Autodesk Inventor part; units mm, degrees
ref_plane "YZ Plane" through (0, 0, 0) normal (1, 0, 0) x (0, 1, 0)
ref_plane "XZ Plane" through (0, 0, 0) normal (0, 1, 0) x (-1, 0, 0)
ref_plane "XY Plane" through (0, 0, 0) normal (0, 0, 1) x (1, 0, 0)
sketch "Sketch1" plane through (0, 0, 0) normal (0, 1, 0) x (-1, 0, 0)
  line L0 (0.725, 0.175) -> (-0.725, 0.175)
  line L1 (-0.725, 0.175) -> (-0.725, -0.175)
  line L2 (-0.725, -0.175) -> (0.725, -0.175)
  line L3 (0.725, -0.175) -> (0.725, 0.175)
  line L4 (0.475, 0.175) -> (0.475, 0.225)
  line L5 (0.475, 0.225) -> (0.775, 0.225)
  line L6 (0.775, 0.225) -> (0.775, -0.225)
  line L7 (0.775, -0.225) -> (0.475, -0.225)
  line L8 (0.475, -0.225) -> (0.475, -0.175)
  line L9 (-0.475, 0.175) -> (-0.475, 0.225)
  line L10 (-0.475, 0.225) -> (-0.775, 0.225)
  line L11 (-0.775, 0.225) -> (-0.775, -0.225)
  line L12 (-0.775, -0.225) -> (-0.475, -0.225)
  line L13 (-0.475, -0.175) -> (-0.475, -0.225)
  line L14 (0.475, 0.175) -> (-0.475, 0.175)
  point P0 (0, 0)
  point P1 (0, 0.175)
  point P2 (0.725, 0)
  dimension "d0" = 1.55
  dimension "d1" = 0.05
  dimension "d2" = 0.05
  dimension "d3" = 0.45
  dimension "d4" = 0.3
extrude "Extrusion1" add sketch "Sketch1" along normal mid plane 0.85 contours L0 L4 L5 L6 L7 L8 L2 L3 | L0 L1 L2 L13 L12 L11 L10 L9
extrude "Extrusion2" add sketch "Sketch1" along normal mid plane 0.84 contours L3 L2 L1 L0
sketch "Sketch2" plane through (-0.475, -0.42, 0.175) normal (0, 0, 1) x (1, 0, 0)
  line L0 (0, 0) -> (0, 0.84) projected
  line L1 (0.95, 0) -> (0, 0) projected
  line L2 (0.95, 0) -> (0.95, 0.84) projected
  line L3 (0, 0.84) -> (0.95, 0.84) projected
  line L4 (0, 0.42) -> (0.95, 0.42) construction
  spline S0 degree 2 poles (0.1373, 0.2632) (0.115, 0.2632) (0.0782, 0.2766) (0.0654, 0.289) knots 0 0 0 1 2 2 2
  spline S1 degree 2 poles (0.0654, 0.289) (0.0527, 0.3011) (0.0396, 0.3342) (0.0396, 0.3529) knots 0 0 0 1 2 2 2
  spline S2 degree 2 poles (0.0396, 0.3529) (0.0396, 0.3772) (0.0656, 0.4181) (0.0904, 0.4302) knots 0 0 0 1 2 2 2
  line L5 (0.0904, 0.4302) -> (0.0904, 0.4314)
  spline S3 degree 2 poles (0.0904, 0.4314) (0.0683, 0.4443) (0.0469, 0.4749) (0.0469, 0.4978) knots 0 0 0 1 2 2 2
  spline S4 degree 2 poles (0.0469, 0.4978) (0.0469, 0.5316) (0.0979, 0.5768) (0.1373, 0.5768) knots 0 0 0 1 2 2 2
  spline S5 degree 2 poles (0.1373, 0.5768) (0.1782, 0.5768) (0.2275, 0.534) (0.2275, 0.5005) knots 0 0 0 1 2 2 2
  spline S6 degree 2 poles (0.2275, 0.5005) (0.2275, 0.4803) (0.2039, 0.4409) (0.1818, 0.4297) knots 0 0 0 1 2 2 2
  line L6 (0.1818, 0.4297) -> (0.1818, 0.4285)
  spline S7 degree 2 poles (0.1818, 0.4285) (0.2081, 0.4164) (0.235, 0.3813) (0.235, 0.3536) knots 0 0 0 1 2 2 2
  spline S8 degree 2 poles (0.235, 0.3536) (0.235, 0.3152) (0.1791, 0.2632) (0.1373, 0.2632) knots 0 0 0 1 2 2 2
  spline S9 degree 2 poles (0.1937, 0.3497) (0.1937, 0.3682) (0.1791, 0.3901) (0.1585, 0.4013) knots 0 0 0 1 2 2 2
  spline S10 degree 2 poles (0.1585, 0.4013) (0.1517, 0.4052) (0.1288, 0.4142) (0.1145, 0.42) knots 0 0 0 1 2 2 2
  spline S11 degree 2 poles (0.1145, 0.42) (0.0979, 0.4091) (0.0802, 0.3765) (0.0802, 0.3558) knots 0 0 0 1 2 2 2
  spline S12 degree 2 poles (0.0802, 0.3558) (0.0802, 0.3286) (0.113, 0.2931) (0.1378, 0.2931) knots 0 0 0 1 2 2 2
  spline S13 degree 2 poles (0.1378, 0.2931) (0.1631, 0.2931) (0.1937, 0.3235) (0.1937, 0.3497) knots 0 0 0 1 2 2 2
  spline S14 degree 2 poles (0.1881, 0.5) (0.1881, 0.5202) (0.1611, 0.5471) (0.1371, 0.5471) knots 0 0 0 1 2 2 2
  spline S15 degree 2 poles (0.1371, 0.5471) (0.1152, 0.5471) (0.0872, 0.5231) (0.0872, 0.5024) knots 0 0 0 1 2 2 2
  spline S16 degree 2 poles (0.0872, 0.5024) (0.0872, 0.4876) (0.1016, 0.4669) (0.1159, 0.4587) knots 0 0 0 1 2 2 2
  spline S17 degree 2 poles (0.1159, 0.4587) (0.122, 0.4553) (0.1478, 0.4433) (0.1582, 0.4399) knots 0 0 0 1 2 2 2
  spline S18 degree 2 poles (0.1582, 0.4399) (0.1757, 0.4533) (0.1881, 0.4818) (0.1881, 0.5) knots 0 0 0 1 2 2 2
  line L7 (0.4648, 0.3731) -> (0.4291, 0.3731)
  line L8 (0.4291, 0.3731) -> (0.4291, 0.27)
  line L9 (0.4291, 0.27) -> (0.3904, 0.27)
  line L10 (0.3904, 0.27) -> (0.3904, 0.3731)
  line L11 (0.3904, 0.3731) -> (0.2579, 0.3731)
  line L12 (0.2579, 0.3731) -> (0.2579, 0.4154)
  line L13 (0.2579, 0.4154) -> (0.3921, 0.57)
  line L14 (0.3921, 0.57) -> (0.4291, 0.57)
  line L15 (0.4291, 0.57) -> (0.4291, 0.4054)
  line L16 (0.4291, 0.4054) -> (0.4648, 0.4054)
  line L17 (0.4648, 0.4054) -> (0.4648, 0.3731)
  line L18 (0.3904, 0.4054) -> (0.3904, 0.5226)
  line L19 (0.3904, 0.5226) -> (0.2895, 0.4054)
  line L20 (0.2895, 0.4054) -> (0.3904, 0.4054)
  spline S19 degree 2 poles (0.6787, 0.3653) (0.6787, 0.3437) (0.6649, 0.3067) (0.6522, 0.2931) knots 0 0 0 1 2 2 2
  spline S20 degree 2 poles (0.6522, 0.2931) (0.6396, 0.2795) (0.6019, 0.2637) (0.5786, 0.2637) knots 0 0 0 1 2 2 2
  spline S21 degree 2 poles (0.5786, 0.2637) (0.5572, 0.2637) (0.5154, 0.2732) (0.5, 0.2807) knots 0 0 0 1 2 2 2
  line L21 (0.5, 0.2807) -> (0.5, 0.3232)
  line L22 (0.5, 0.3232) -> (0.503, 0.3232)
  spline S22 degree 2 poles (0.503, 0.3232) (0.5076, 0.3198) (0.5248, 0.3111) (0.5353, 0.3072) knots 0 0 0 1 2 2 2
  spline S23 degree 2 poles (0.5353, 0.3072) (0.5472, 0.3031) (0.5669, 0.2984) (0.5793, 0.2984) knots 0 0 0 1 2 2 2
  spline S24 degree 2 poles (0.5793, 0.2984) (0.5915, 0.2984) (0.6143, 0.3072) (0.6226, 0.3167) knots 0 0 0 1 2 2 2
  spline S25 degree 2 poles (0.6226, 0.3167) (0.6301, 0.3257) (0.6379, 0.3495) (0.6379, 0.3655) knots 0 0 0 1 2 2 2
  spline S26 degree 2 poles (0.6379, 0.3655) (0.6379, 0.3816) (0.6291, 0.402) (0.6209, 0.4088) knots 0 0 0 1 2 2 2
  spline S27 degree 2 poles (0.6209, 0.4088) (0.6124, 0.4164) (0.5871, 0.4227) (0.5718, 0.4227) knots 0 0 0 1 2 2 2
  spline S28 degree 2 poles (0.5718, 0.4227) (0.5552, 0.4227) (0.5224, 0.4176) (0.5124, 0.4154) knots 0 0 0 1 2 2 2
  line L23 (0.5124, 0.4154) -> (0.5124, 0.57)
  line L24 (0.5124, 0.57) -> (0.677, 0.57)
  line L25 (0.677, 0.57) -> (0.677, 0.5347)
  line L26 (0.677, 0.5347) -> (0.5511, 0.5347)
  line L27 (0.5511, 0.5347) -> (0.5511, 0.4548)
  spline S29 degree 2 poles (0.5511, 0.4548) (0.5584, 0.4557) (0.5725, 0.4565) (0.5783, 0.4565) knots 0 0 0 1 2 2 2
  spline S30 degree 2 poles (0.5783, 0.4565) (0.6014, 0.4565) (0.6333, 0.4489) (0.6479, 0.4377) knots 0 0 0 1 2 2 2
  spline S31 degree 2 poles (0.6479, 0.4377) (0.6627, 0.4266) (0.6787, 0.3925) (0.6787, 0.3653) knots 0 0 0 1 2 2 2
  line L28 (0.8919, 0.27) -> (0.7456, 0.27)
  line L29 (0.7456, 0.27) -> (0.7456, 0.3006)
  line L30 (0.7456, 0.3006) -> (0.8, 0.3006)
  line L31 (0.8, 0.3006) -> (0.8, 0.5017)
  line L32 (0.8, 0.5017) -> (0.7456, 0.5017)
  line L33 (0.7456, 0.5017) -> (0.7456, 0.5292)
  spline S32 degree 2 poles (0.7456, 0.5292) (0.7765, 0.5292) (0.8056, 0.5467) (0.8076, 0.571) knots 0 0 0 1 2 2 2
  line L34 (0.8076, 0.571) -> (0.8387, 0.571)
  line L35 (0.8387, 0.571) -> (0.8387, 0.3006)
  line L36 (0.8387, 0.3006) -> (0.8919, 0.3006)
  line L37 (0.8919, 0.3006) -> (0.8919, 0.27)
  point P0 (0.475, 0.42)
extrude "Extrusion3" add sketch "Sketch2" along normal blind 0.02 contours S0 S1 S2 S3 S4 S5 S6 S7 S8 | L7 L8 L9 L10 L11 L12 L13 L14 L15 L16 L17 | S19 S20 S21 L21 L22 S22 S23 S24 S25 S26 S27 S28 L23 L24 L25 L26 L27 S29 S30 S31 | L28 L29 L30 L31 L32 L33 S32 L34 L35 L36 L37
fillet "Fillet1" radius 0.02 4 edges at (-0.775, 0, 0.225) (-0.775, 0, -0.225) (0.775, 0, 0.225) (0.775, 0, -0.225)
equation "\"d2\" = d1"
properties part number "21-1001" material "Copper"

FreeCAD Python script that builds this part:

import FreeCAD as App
import Part
import Sketcher
Q = App.Units.Quantity


def edges_at(feature, points):
    """Names of the edges that pass closest to the given points."""
    edges = feature.Shape.Edges
    near = lambda p: min(range(len(edges)), key=lambda i: edges[i].distToShape(Part.Vertex(*p))[0])
    return sorted({f"Edge{near(p) + 1}" for p in points})


def add_polygon(sketch, points):
    """Adds a closed chain of lines whose ends are joined by coincident constraints."""
    first, n = sketch.GeometryCount, len(points)
    for a, b in zip(points, points[1:] + points[:1]):
        sketch.addGeometry(Part.LineSegment(App.Vector(*a, 0), App.Vector(*b, 0)), False)
    for i in range(n):
        sketch.addConstraint(Sketcher.Constraint("Coincident", first + i, 2, first + (i + 1) % n, 1))

doc = App.newDocument("Part")
body = doc.addObject("PartDesign::Body", "Body")
body.AllowCompound = True

sketch1 = doc.addObject("Sketcher::SketchObject", "Sketch")
body.addObject(sketch1)
sketch1.AttachmentSupport = (doc.XZ_Plane, [""])
sketch1.MapMode = "FlatFace"
add_polygon(sketch1, [(-0.47, 0.17), (-0.72, 0.17), (-0.72, -0.17), (-0.47, -0.17), (-0.47, -0.23), (-0.78, -0.23), (-0.78, 0.23), (-0.47, 0.23)])
add_polygon(sketch1, [(0.72, 0.17), (0.47, 0.17), (0.47, 0.23), (0.78, 0.23), (0.78, -0.23), (0.47, -0.23), (0.47, -0.17), (0.72, -0.17)])
sketch1.addConstraint([
    Sketcher.Constraint("Horizontal", 0),
    Sketcher.Constraint("Vertical", 1),
    Sketcher.Constraint("Horizontal", 2),
    Sketcher.Constraint("Vertical", 3),
    Sketcher.Constraint("Horizontal", 4),
    Sketcher.Constraint("Vertical", 5),
    Sketcher.Constraint("Horizontal", 6),
    Sketcher.Constraint("Vertical", 7),
    Sketcher.Constraint("Horizontal", 8),
    Sketcher.Constraint("Vertical", 9),
    Sketcher.Constraint("Horizontal", 10),
    Sketcher.Constraint("Vertical", 11),
    Sketcher.Constraint("Horizontal", 12),
    Sketcher.Constraint("Vertical", 13),
    Sketcher.Constraint("Horizontal", 14),
    Sketcher.Constraint("Vertical", 15),
    Sketcher.Constraint("Symmetric", 2, 2, 8, 2, -1, 1),
    Sketcher.Constraint("Symmetric", 4, 2, 10, 2, -1, 1),
    Sketcher.Constraint("Symmetric", 6, 2, 12, 2, -1, 1),
    Sketcher.Constraint("Symmetric", 0, 2, 14, 2, -1, 1),
    Sketcher.Constraint("Symmetric", 7, 2, 8, 2, -2),
    Sketcher.Constraint("Horizontal", 6, 2, 9, 2),
    Sketcher.Constraint("DistanceX", 4, 2, 4, 1, Q("0.3 mm")),
    Sketcher.Constraint("DistanceY", 3, 2, 3, 1, Q("0.05 mm")),
    Sketcher.Constraint("DistanceY", 5, 1, 5, 2, Q("0.45 mm")),
    Sketcher.Constraint("DistanceX", 4, 2, 1, 2, Q("0.05 mm")),
    Sketcher.Constraint("DistanceX", 0, 2, 8, 2, Q("1.2 mm")),
])
pad1 = doc.addObject("PartDesign::Pad", "Pad")
body.addObject(pad1)
pad1.Profile = sketch1
pad1.Length = 0.85
pad1.Midplane = True

sketch2 = doc.addObject("Sketcher::SketchObject", "Sketch001")
body.addObject(sketch2)
sketch2.AttachmentSupport = (doc.XZ_Plane, [""])
sketch2.MapMode = "FlatFace"
add_polygon(sketch2, [(-0.72, -0.17), (-0.72, 0.17), (0.72, 0.17), (0.72, -0.17)])
sketch2.addConstraint([
    Sketcher.Constraint("Vertical", 0),
    Sketcher.Constraint("Horizontal", 1),
    Sketcher.Constraint("Vertical", 2),
    Sketcher.Constraint("Horizontal", 3),
    Sketcher.Constraint("Symmetric", 0, 2, 2, 2, -1, 1),
    Sketcher.Constraint("DistanceX", 1, 1, 1, 2, Q("1.45 mm")),
    Sketcher.Constraint("DistanceY", 0, 1, 0, 2, Q("0.35 mm")),
])
pad2 = doc.addObject("PartDesign::Pad", "Pad001")
body.addObject(pad2)
pad2.Profile = sketch2
pad2.Length = 0.84
pad2.Midplane = True

sketch3 = doc.addObject("Sketcher::SketchObject", "Sketch002")
body.addObject(sketch3)
sketch3.AttachmentSupport = (doc.XY_Plane, [""])
sketch3.MapMode = "FlatFace"
sketch3.AttachmentOffset = App.Placement(App.Vector(0, 0, 0.175), App.Rotation())
sketch3.addGeometry(Part.BSplineCurve([App.Vector(-0.3377, -0.1568, 0), App.Vector(-0.36, -0.1568, 0), App.Vector(-0.3968, -0.1434, 0), App.Vector(-0.4096, -0.131, 0)], [3, 1, 3], [0, 1, 2], False, 2, [1, 1, 1, 1], False), False)
sketch3.addGeometry(Part.BSplineCurve([App.Vector(-0.24, -0.0664, 0), App.Vector(-0.24, -0.1048, 0), App.Vector(-0.2959, -0.1568, 0), App.Vector(-0.3377, -0.1568, 0)], [3, 1, 3], [0, 1, 2], False, 2, [1, 1, 1, 1], False), False)
sketch3.addGeometry(Part.BSplineCurve([App.Vector(-0.2932, 0.0097, 0), App.Vector(-0.2669, -0.0036, 0), App.Vector(-0.24, -0.0387, 0), App.Vector(-0.24, -0.0664, 0)], [3, 1, 3], [0, 1, 2], False, 2, [1, 1, 1, 1], False), False)
sketch3.addGeometry(Part.BSplineCurve([App.Vector(-0.2475, 0.0805, 0), App.Vector(-0.2475, 0.0603, 0), App.Vector(-0.2711, 0.0209, 0), App.Vector(-0.2932, 0.0097, 0)], [3, 1, 3], [0, 1, 2], False, 2, [1, 1, 1, 1], False), False)
sketch3.addGeometry(Part.BSplineCurve([App.Vector(-0.3377, 0.1568, 0), App.Vector(-0.2968, 0.1568, 0), App.Vector(-0.2475, 0.114, 0), App.Vector(-0.2475, 0.0805, 0)], [3, 1, 3], [0, 1, 2], False, 2, [1, 1, 1, 1], False), False)
sketch3.addGeometry(Part.BSplineCurve([App.Vector(-0.4281, 0.0778, 0), App.Vector(-0.4281, 0.1116, 0), App.Vector(-0.3771, 0.1568, 0), App.Vector(-0.3377, 0.1568, 0)], [3, 1, 3], [0, 1, 2], False, 2, [1, 1, 1, 1], False), False)
sketch3.addGeometry(Part.BSplineCurve([App.Vector(-0.3846, 0.0102, 0), App.Vector(-0.4067, 0.0243, 0), App.Vector(-0.4281, 0.0549, 0), App.Vector(-0.4281, 0.0778, 0)], [3, 1, 3], [0, 1, 2], False, 2, [1, 1, 1, 1], False), False)
sketch3.addGeometry(Part.BSplineCurve([App.Vector(-0.4354, -0.0671, 0), App.Vector(-0.4354, -0.0428, 0), App.Vector(-0.4094, -0.0019, 0), App.Vector(-0.3846, 0.0102, 0)], [3, 1, 3], [0, 1, 2], False, 2, [1, 1, 1, 1], False), False)
sketch3.addGeometry(Part.BSplineCurve([App.Vector(-0.4096, -0.131, 0), App.Vector(-0.4223, -0.1189, 0), App.Vector(-0.4354, -0.0858, 0), App.Vector(-0.4354, -0.0671, 0)], [3, 1, 3], [0, 1, 2], False, 2, [1, 1, 1, 1], False), False)
sketch3.addGeometry(Part.BSplineCurve([App.Vector(-0.2813, -0.0703, 0), App.Vector(-0.2813, -0.0518, 0), App.Vector(-0.2959, -0.0299, 0), App.Vector(-0.3165, -0.0187, 0)], [3, 1, 3], [0, 1, 2], False, 2, [1, 1, 1, 1], False), False)
sketch3.addGeometry(Part.BSplineCurve([App.Vector(-0.3372, -0.1269, 0), App.Vector(-0.3119, -0.1269, 0), App.Vector(-0.2813, -0.0965, 0), App.Vector(-0.2813, -0.0703, 0)], [3, 1, 3], [0, 1, 2], False, 2, [1, 1, 1, 1], False), False)
sketch3.addGeometry(Part.BSplineCurve([App.Vector(-0.3948, -0.0642, 0), App.Vector(-0.3948, -0.0914, 0), App.Vector(-0.362, -0.1269, 0), App.Vector(-0.3372, -0.1269, 0)], [3, 1, 3], [0, 1, 2], False, 2, [1, 1, 1, 1], False), False)
sketch3.addGeometry(Part.BSplineCurve([App.Vector(-0.3605, 0, 0), App.Vector(-0.3771, -0.0109, 0), App.Vector(-0.3948, -0.0435, 0), App.Vector(-0.3948, -0.0642, 0)], [3, 1, 3], [0, 1, 2], False, 2, [1, 1, 1, 1], False), False)
sketch3.addGeometry(Part.BSplineCurve([App.Vector(-0.3165, -0.0187, 0), App.Vector(-0.3233, -0.0148, 0), App.Vector(-0.3462, -0.0058, 0), App.Vector(-0.3605, 0, 0)], [3, 1, 3], [0, 1, 2], False, 2, [1, 1, 1, 1], False), False)
sketch3.addGeometry(Part.BSplineCurve([App.Vector(-0.2869, 0.08, 0), App.Vector(-0.2869, 0.1002, 0), App.Vector(-0.3139, 0.1271, 0), App.Vector(-0.3379, 0.1271, 0)], [3, 1, 3], [0, 1, 2], False, 2, [1, 1, 1, 1], False), False)
sketch3.addGeometry(Part.BSplineCurve([App.Vector(-0.3168, 0.0199, 0), App.Vector(-0.2993, 0.0333, 0), App.Vector(-0.2869, 0.0618, 0), App.Vector(-0.2869, 0.08, 0)], [3, 1, 3], [0, 1, 2], False, 2, [1, 1, 1, 1], False), False)
sketch3.addGeometry(Part.BSplineCurve([App.Vector(-0.3591, 0.0387, 0), App.Vector(-0.353, 0.0353, 0), App.Vector(-0.3272, 0.0233, 0), App.Vector(-0.3168, 0.0199, 0)], [3, 1, 3], [0, 1, 2], False, 2, [1, 1, 1, 1], False), False)
sketch3.addGeometry(Part.BSplineCurve([App.Vector(-0.3878, 0.0824, 0), App.Vector(-0.3878, 0.0676, 0), App.Vector(-0.3734, 0.0469, 0), App.Vector(-0.3591, 0.0387, 0)], [3, 1, 3], [0, 1, 2], False, 2, [1, 1, 1, 1], False), False)
sketch3.addGeometry(Part.BSplineCurve([App.Vector(-0.3379, 0.1271, 0), App.Vector(-0.3598, 0.1271, 0), App.Vector(-0.3878, 0.1031, 0), App.Vector(-0.3878, 0.0824, 0)], [3, 1, 3], [0, 1, 2], False, 2, [1, 1, 1, 1], False), False)
add_polygon(sketch3, [(-0.0459, -0.0469), (-0.0102, -0.0469), (-0.0102, -0.0146), (-0.0459, -0.0146), (-0.0459, 0.15), (-0.0829, 0.15), (-0.2171, -0.0046), (-0.2171, -0.0469), (-0.0846, -0.0469), (-0.0846, -0.15), (-0.0459, -0.15)])
add_polygon(sketch3, [(-0.0846, 0.1026), (-0.0846, -0.0146), (-0.1855, -0.0146)])
sketch3.addGeometry(Part.BSplineCurve([App.Vector(0.2037, -0.0547, 0), App.Vector(0.2037, -0.0763, 0), App.Vector(0.1899, -0.1133, 0), App.Vector(0.1772, -0.1269, 0)], [3, 1, 3], [0, 1, 2], False, 2, [1, 1, 1, 1], False), False)
sketch3.addGeometry(Part.BSplineCurve([App.Vector(0.1729, 0.0177, 0), App.Vector(0.1877, 0.0066, 0), App.Vector(0.2037, -0.0275, 0), App.Vector(0.2037, -0.0547, 0)], [3, 1, 3], [0, 1, 2], False, 2, [1, 1, 1, 1], False), False)
sketch3.addGeometry(Part.BSplineCurve([App.Vector(0.1033, 0.0365, 0), App.Vector(0.1264, 0.0365, 0), App.Vector(0.1583, 0.0289, 0), App.Vector(0.1729, 0.0177, 0)], [3, 1, 3], [0, 1, 2], False, 2, [1, 1, 1, 1], False), False)
sketch3.addGeometry(Part.BSplineCurve([App.Vector(0.0761, 0.0348, 0), App.Vector(0.0834, 0.0357, 0), App.Vector(0.0975, 0.0365, 0), App.Vector(0.1033, 0.0365, 0)], [3, 1, 3], [0, 1, 2], False, 2, [1, 1, 1, 1], False), False)
sketch3.addGeometry(Part.LineSegment(App.Vector(0.0761, 0.0348, 0), App.Vector(0.0761, 0.1147, 0)), False)
sketch3.addGeometry(Part.LineSegment(App.Vector(0.0761, 0.1147, 0), App.Vector(0.202, 0.1147, 0)), False)
sketch3.addGeometry(Part.LineSegment(App.Vector(0.202, 0.1147, 0), App.Vector(0.202, 0.15, 0)), False)
sketch3.addGeometry(Part.LineSegment(App.Vector(0.202, 0.15, 0), App.Vector(0.0374, 0.15, 0)), False)
sketch3.addGeometry(Part.LineSegment(App.Vector(0.0374, 0.15, 0), App.Vector(0.0374, -0.0046, 0)), False)
sketch3.addGeometry(Part.BSplineCurve([App.Vector(0.0968, 0.0027, 0), App.Vector(0.0802, 0.0027, 0), App.Vector(0.0474, -0.0024, 0), App.Vector(0.0374, -0.0046, 0)], [3, 1, 3], [0, 1, 2], False, 2, [1, 1, 1, 1], False), False)
sketch3.addGeometry(Part.BSplineCurve([App.Vector(0.1459, -0.0112, 0), App.Vector(0.1374, -0.0036, 0), App.Vector(0.1121, 0.0027, 0), App.Vector(0.0968, 0.0027, 0)], [3, 1, 3], [0, 1, 2], False, 2, [1, 1, 1, 1], False), False)
sketch3.addGeometry(Part.BSplineCurve([App.Vector(0.1629, -0.0545, 0), App.Vector(0.1629, -0.0384, 0), App.Vector(0.1541, -0.018, 0), App.Vector(0.1459, -0.0112, 0)], [3, 1, 3], [0, 1, 2], False, 2, [1, 1, 1, 1], False), False)
sketch3.addGeometry(Part.BSplineCurve([App.Vector(0.1476, -0.1033, 0), App.Vector(0.1551, -0.0943, 0), App.Vector(0.1629, -0.0705, 0), App.Vector(0.1629, -0.0545, 0)], [3, 1, 3], [0, 1, 2], False, 2, [1, 1, 1, 1], False), False)
sketch3.addGeometry(Part.BSplineCurve([App.Vector(0.1043, -0.1216, 0), App.Vector(0.1165, -0.1216, 0), App.Vector(0.1393, -0.1128, 0), App.Vector(0.1476, -0.1033, 0)], [3, 1, 3], [0, 1, 2], False, 2, [1, 1, 1, 1], False), False)
sketch3.addGeometry(Part.BSplineCurve([App.Vector(0.0603, -0.1128, 0), App.Vector(0.0722, -0.1169, 0), App.Vector(0.0919, -0.1216, 0), App.Vector(0.1043, -0.1216, 0)], [3, 1, 3], [0, 1, 2], False, 2, [1, 1, 1, 1], False), False)
sketch3.addGeometry(Part.BSplineCurve([App.Vector(0.028, -0.0968, 0), App.Vector(0.0326, -0.1002, 0), App.Vector(0.0498, -0.1089, 0), App.Vector(0.0603, -0.1128, 0)], [3, 1, 3], [0, 1, 2], False, 2, [1, 1, 1, 1], False), False)
sketch3.addGeometry(Part.LineSegment(App.Vector(0.028, -0.0968, 0), App.Vector(0.025, -0.0968, 0)), False)
sketch3.addGeometry(Part.LineSegment(App.Vector(0.025, -0.0968, 0), App.Vector(0.025, -0.1393, 0)), False)
sketch3.addGeometry(Part.BSplineCurve([App.Vector(0.1036, -0.1563, 0), App.Vector(0.0822, -0.1563, 0), App.Vector(0.0404, -0.1468, 0), App.Vector(0.025, -0.1393, 0)], [3, 1, 3], [0, 1, 2], False, 2, [1, 1, 1, 1], False), False)
sketch3.addGeometry(Part.BSplineCurve([App.Vector(0.1772, -0.1269, 0), App.Vector(0.1646, -0.1405, 0), App.Vector(0.1269, -0.1563, 0), App.Vector(0.1036, -0.1563, 0)], [3, 1, 3], [0, 1, 2], False, 2, [1, 1, 1, 1], False), False)
sketch3.addGeometry(Part.LineSegment(App.Vector(0.2706, -0.15, 0), App.Vector(0.4169, -0.15, 0)), False)
sketch3.addGeometry(Part.LineSegment(App.Vector(0.4169, -0.15, 0), App.Vector(0.4169, -0.1194, 0)), False)
sketch3.addGeometry(Part.LineSegment(App.Vector(0.4169, -0.1194, 0), App.Vector(0.3637, -0.1194, 0)), False)
sketch3.addGeometry(Part.LineSegment(App.Vector(0.3637, -0.1194, 0), App.Vector(0.3637, 0.151, 0)), False)
sketch3.addGeometry(Part.LineSegment(App.Vector(0.3637, 0.151, 0), App.Vector(0.3326, 0.151, 0)), False)
sketch3.addGeometry(Part.BSplineCurve([App.Vector(0.2706, 0.1092, 0), App.Vector(0.3015, 0.1092, 0), App.Vector(0.3306, 0.1267, 0), App.Vector(0.3326, 0.151, 0)], [3, 1, 3], [0, 1, 2], False, 2, [1, 1, 1, 1], False), False)
sketch3.addGeometry(Part.LineSegment(App.Vector(0.2706, 0.1092, 0), App.Vector(0.2706, 0.0817, 0)), False)
sketch3.addGeometry(Part.LineSegment(App.Vector(0.2706, 0.0817, 0), App.Vector(0.325, 0.0817, 0)), False)
sketch3.addGeometry(Part.LineSegment(App.Vector(0.325, 0.0817, 0), App.Vector(0.325, -0.1194, 0)), False)
sketch3.addGeometry(Part.LineSegment(App.Vector(0.325, -0.1194, 0), App.Vector(0.2706, -0.1194, 0)), False)
sketch3.addGeometry(Part.LineSegment(App.Vector(0.2706, -0.1194, 0), App.Vector(0.2706, -0.15, 0)), False)
sketch3.addConstraint([
    Sketcher.Constraint("Block", 0),
    Sketcher.Constraint("Block", 1),
    Sketcher.Constraint("Block", 2),
    Sketcher.Constraint("Block", 3),
    Sketcher.Constraint("Block", 4),
    Sketcher.Constraint("Block", 5),
    Sketcher.Constraint("Block", 6),
    Sketcher.Constraint("Block", 7),
    Sketcher.Constraint("Block", 8),
    Sketcher.Constraint("Block", 9),
    Sketcher.Constraint("Block", 10),
    Sketcher.Constraint("Block", 11),
    Sketcher.Constraint("Block", 12),
    Sketcher.Constraint("Block", 13),
    Sketcher.Constraint("Block", 14),
    Sketcher.Constraint("Block", 15),
    Sketcher.Constraint("Block", 16),
    Sketcher.Constraint("Block", 17),
    Sketcher.Constraint("Block", 18),
    Sketcher.Constraint("Block", 33),
    Sketcher.Constraint("Block", 34),
    Sketcher.Constraint("Block", 35),
    Sketcher.Constraint("Block", 36),
    Sketcher.Constraint("Block", 42),
    Sketcher.Constraint("Block", 43),
    Sketcher.Constraint("Block", 44),
    Sketcher.Constraint("Block", 45),
    Sketcher.Constraint("Block", 46),
    Sketcher.Constraint("Block", 47),
    Sketcher.Constraint("Block", 48),
    Sketcher.Constraint("Block", 51),
    Sketcher.Constraint("Block", 52),
    Sketcher.Constraint("Block", 58),
    Sketcher.Constraint("Coincident", 36, 1, 37, 1),
    Sketcher.Constraint("Coincident", 37, 2, 38, 1),
    Sketcher.Constraint("Coincident", 38, 2, 39, 1),
    Sketcher.Constraint("Coincident", 39, 2, 40, 1),
    Sketcher.Constraint("Coincident", 40, 2, 41, 1),
    Sketcher.Constraint("Coincident", 41, 2, 42, 2),
    Sketcher.Constraint("Coincident", 48, 1, 49, 1),
    Sketcher.Constraint("Coincident", 49, 2, 50, 1),
    Sketcher.Constraint("Coincident", 50, 2, 51, 2),
    Sketcher.Constraint("Coincident", 53, 2, 54, 1),
    Sketcher.Constraint("Coincident", 54, 2, 55, 1),
    Sketcher.Constraint("Coincident", 55, 2, 56, 1),
    Sketcher.Constraint("Coincident", 56, 2, 57, 1),
    Sketcher.Constraint("Coincident", 57, 2, 58, 2),
    Sketcher.Constraint("Coincident", 58, 1, 59, 1),
    Sketcher.Constraint("Coincident", 59, 2, 60, 1),
    Sketcher.Constraint("Coincident", 60, 2, 61, 1),
    Sketcher.Constraint("Coincident", 61, 2, 62, 1),
    Sketcher.Constraint("Coincident", 62, 2, 63, 1),
    Sketcher.Constraint("Coincident", 63, 2, 53, 1),
    Sketcher.Constraint("Horizontal", 19),
    Sketcher.Constraint("Vertical", 20),
    Sketcher.Constraint("Horizontal", 21),
    Sketcher.Constraint("Vertical", 22),
    Sketcher.Constraint("Horizontal", 23),
    Sketcher.Constraint("Vertical", 25),
    Sketcher.Constraint("Horizontal", 26),
    Sketcher.Constraint("Vertical", 27),
    Sketcher.Constraint("Horizontal", 28),
    Sketcher.Constraint("Vertical", 29),
    Sketcher.Constraint("Vertical", 30),
    Sketcher.Constraint("Horizontal", 31),
    Sketcher.Constraint("Vertical", 37),
    Sketcher.Constraint("Horizontal", 38),
    Sketcher.Constraint("Vertical", 39),
    Sketcher.Constraint("Horizontal", 40),
    Sketcher.Constraint("Vertical", 41),
    Sketcher.Constraint("Horizontal", 49),
    Sketcher.Constraint("Vertical", 50),
    Sketcher.Constraint("Horizontal", 53),
    Sketcher.Constraint("Vertical", 54),
    Sketcher.Constraint("Horizontal", 55),
    Sketcher.Constraint("Vertical", 56),
    Sketcher.Constraint("Horizontal", 57),
    Sketcher.Constraint("Vertical", 59),
    Sketcher.Constraint("Horizontal", 60),
    Sketcher.Constraint("Vertical", 61),
    Sketcher.Constraint("Horizontal", 62),
    Sketcher.Constraint("Vertical", 63),
    Sketcher.Constraint("Symmetric", 22, 2, 28, 2, -1),
    Sketcher.Constraint("Horizontal", 19, 2, 25, 2),
    Sketcher.Constraint("Horizontal", 21, 2, 30, 2),
    Sketcher.Constraint("Horizontal", 23, 2, 39, 2),
    Sketcher.Constraint("Horizontal", 24, 2, 41, 2),
    Sketcher.Constraint("Horizontal", 28, 2, 53, 2),
    Sketcher.Constraint("Horizontal", 55, 2, 61, 2),
    Sketcher.Constraint("Vertical", 27, 2, 30, 2),
    Sketcher.Constraint("Vertical", 59, 2, 62, 2),
    Sketcher.Constraint("Equal", 40, 22),
    Sketcher.Constraint("DistanceY", 37, 1, 37, 2, Q("0.08 mm")),
    Sketcher.Constraint("Angle", 24, Q("-130.9595 deg")),
    Sketcher.Constraint("DistanceY", 53, 2, 39, 2, Q("0.3 mm")),
    Sketcher.Constraint("DistanceX", 23, 2, 23, 1, Q("0.037 mm")),
    Sketcher.Constraint("DistanceX", 31, 2, 31, 1, Q("0.101 mm")),
    Sketcher.Constraint("DistanceX", 38, 1, 38, 2, Q("0.126 mm")),
    Sketcher.Constraint("DistanceX", 57, 2, 57, 1, Q("0.031 mm")),
    Sketcher.Constraint("DistanceY", 27, 2, 27, 1, Q("0.103 mm")),
    Sketcher.Constraint("DistanceY", 61, 2, 61, 1, Q("0.201 mm")),
    Sketcher.Constraint("DistanceY", 50, 2, 54, 2, Q("0.02 mm")),
    Sketcher.Constraint("DistanceX", 19, 1, 19, 2, Q("0.0357 mm")),
    Sketcher.Constraint("DistanceX", 26, 1, 26, 2, Q("0.1325 mm")),
    Sketcher.Constraint("DistanceX", 53, 1, 53, 2, Q("0.1463 mm")),
    Sketcher.Constraint("DistanceX", 60, 1, 60, 2, Q("0.0544 mm")),
    Sketcher.Constraint("DistanceY", 30, 2, 30, 1, Q("0.1172 mm")),
    Sketcher.Constraint("DistanceX", 21, 2, -1, 1, Q("0.046 mm")),
])
pad3 = doc.addObject("PartDesign::Pad", "Pad002")
body.addObject(pad3)
pad3.Profile = sketch3
pad3.Length = 0.02
doc.recompute()

fillet = doc.addObject("PartDesign::Fillet", "Fillet")
body.addObject(fillet)
fillet.Base = (pad3, edges_at(pad3, [
    (-0.775, 0, 0.225),
    (-0.775, 0, -0.225),
    (0.775, 0, 0.225),
    (0.775, 0, -0.225),
]))
fillet.Radius = 0.02

doc.recompute()
